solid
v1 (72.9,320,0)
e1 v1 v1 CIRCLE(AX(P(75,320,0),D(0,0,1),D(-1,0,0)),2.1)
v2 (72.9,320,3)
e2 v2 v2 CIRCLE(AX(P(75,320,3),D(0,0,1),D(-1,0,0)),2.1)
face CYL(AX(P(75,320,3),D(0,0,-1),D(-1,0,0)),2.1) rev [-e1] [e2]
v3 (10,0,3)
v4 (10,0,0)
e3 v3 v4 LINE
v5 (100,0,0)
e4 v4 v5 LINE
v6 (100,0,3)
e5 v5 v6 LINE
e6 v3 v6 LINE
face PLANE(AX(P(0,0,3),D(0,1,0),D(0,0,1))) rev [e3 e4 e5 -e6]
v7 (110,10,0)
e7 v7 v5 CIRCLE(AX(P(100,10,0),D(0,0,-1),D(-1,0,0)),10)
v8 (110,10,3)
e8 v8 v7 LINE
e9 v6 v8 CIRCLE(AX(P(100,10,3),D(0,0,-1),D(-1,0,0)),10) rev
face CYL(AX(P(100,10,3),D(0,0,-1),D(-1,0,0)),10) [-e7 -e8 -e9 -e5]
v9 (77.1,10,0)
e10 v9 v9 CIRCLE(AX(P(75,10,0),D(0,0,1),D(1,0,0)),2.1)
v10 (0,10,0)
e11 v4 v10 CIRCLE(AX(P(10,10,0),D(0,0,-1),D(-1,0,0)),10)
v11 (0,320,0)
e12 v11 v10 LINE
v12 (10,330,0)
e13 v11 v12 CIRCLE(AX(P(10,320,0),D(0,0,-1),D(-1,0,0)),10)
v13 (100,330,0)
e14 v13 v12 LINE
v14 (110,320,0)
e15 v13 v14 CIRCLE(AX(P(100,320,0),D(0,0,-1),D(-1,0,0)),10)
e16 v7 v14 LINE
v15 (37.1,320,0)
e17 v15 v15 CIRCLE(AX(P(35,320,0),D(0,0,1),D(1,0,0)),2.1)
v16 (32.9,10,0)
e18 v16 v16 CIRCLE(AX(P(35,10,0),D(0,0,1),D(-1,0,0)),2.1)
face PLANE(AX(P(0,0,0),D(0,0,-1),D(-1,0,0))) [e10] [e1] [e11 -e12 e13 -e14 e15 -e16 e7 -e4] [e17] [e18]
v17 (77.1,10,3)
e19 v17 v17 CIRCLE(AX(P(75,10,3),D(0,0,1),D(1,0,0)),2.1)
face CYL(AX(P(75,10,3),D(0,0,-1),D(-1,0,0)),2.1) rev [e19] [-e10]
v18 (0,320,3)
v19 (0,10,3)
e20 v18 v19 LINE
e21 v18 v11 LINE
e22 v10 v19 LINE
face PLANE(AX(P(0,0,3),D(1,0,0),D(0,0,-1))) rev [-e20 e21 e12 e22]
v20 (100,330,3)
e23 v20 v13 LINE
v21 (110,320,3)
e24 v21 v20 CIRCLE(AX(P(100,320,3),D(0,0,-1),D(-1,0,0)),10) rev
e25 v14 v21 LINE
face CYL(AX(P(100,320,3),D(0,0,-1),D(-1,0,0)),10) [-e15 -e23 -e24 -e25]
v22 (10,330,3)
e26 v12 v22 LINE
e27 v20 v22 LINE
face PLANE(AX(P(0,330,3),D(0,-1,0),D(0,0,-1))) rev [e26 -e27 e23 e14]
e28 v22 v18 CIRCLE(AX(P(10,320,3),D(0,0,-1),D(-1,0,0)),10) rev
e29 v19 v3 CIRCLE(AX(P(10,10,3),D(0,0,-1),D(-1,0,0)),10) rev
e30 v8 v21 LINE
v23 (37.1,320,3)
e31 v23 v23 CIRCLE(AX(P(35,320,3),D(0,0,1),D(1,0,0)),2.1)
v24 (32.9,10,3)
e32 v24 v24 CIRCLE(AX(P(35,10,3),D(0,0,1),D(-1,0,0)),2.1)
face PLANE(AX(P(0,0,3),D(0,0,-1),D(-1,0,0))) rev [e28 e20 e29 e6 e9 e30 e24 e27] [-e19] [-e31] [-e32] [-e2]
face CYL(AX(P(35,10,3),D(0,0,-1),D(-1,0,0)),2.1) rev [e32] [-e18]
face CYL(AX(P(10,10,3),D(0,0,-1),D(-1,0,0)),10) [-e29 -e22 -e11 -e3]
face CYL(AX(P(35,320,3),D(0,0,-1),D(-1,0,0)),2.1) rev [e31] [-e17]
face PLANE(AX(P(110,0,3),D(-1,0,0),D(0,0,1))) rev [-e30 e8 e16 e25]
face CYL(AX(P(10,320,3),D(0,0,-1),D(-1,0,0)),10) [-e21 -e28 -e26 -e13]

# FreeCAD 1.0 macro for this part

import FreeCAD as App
import Part
import Sketcher

V = App.Vector
Q = App.Units.Quantity


def edges_at(feature, points):
    """Names of the edges that pass closest to the given points."""
    edges = feature.Shape.Edges
    near = lambda p: min(range(len(edges)), key=lambda i: edges[i].distToShape(Part.Vertex(*p))[0])
    return sorted({f"Edge{near(p) + 1}" for p in points})


def add_polygon(sketch, points):
    """Adds a closed chain of lines whose ends are joined by coincident constraints."""
    first, n = sketch.GeometryCount, len(points)
    for a, b in zip(points, points[1:] + points[:1]):
        sketch.addGeometry(Part.LineSegment(App.Vector(*a, 0), App.Vector(*b, 0)), False)
    for i in range(n):
        sketch.addConstraint(Sketcher.Constraint("Coincident", first + i, 2, first + (i + 1) % n, 1))

doc = App.newDocument("Part")
body = doc.addObject("PartDesign::Body", "Body")

sketch1 = body.newObject("Sketcher::SketchObject", "Sketch")
sketch1.AttachmentSupport = (doc.getObject("XY_Plane"), [""])
sketch1.MapMode = "FlatFace"
add_polygon(sketch1, [(0, 330), (0, 0), (110, 0), (110, 330)])
sketch1.addGeometry(Part.Circle(V(35, 10, 0), V(0, 0, 1), 2.1), False)
sketch1.addGeometry(Part.Circle(V(75, 10, 0), V(0, 0, 1), 2.1), False)
sketch1.addGeometry(Part.Circle(V(35, 320, 0), V(0, 0, 1), 2.1), False)
sketch1.addGeometry(Part.Circle(V(75, 320, 0), V(0, 0, 1), 2.1), False)
sketch1.addConstraint(Sketcher.Constraint("Vertical", 0))
sketch1.addConstraint(Sketcher.Constraint("Horizontal", 1))
sketch1.addConstraint(Sketcher.Constraint("Vertical", 2))
sketch1.addConstraint(Sketcher.Constraint("Horizontal", 3))
sketch1.addConstraint(Sketcher.Constraint("Coincident", 0, 2, -1, 1))
sketch1.addConstraint(Sketcher.Constraint("Equal", 4, 5))
sketch1.addConstraint(Sketcher.Constraint("Equal", 5, 6))
sketch1.addConstraint(Sketcher.Constraint("Equal", 6, 7))
sketch1.addConstraint(Sketcher.Constraint("Horizontal", 4, 3, 5, 3))
sketch1.addConstraint(Sketcher.Constraint("Horizontal", 6, 3, 7, 3))
sketch1.addConstraint(Sketcher.Constraint("Vertical", 4, 3, 6, 3))
sketch1.addConstraint(Sketcher.Constraint("Vertical", 5, 3, 7, 3))
sketch1.addConstraint(Sketcher.Constraint("Diameter", 4, Q("4.2 mm")))
sketch1.addConstraint(Sketcher.Constraint("DistanceX", 1, 1, 1, 2, Q("110 mm")))
sketch1.addConstraint(Sketcher.Constraint("DistanceY", 0, 2, 0, 1, Q("330 mm")))
sketch1.addConstraint(Sketcher.Constraint("DistanceX", -1, 1, 4, 3, Q("35 mm")))
sketch1.addConstraint(Sketcher.Constraint("DistanceY", -1, 1, 4, 3, Q("10 mm")))
sketch1.addConstraint(Sketcher.Constraint("DistanceX", -1, 1, 5, 3, Q("75 mm")))
sketch1.addConstraint(Sketcher.Constraint("DistanceY", -1, 1, 6, 3, Q("320 mm")))
pad1 = body.newObject("PartDesign::Pad", "Pad")
pad1.Profile = sketch1
pad1.Length = 3
doc.recompute()

fillet = body.newObject("PartDesign::Fillet", "Fillet")
fillet.Base = (pad1, edges_at(pad1, [
    (0, 330, 1.5),
    (110, 330, 1.5),
    (110, 0, 1.5),
    (0, 0, 1.5),
]))
fillet.Radius = 10

doc.recompute()
